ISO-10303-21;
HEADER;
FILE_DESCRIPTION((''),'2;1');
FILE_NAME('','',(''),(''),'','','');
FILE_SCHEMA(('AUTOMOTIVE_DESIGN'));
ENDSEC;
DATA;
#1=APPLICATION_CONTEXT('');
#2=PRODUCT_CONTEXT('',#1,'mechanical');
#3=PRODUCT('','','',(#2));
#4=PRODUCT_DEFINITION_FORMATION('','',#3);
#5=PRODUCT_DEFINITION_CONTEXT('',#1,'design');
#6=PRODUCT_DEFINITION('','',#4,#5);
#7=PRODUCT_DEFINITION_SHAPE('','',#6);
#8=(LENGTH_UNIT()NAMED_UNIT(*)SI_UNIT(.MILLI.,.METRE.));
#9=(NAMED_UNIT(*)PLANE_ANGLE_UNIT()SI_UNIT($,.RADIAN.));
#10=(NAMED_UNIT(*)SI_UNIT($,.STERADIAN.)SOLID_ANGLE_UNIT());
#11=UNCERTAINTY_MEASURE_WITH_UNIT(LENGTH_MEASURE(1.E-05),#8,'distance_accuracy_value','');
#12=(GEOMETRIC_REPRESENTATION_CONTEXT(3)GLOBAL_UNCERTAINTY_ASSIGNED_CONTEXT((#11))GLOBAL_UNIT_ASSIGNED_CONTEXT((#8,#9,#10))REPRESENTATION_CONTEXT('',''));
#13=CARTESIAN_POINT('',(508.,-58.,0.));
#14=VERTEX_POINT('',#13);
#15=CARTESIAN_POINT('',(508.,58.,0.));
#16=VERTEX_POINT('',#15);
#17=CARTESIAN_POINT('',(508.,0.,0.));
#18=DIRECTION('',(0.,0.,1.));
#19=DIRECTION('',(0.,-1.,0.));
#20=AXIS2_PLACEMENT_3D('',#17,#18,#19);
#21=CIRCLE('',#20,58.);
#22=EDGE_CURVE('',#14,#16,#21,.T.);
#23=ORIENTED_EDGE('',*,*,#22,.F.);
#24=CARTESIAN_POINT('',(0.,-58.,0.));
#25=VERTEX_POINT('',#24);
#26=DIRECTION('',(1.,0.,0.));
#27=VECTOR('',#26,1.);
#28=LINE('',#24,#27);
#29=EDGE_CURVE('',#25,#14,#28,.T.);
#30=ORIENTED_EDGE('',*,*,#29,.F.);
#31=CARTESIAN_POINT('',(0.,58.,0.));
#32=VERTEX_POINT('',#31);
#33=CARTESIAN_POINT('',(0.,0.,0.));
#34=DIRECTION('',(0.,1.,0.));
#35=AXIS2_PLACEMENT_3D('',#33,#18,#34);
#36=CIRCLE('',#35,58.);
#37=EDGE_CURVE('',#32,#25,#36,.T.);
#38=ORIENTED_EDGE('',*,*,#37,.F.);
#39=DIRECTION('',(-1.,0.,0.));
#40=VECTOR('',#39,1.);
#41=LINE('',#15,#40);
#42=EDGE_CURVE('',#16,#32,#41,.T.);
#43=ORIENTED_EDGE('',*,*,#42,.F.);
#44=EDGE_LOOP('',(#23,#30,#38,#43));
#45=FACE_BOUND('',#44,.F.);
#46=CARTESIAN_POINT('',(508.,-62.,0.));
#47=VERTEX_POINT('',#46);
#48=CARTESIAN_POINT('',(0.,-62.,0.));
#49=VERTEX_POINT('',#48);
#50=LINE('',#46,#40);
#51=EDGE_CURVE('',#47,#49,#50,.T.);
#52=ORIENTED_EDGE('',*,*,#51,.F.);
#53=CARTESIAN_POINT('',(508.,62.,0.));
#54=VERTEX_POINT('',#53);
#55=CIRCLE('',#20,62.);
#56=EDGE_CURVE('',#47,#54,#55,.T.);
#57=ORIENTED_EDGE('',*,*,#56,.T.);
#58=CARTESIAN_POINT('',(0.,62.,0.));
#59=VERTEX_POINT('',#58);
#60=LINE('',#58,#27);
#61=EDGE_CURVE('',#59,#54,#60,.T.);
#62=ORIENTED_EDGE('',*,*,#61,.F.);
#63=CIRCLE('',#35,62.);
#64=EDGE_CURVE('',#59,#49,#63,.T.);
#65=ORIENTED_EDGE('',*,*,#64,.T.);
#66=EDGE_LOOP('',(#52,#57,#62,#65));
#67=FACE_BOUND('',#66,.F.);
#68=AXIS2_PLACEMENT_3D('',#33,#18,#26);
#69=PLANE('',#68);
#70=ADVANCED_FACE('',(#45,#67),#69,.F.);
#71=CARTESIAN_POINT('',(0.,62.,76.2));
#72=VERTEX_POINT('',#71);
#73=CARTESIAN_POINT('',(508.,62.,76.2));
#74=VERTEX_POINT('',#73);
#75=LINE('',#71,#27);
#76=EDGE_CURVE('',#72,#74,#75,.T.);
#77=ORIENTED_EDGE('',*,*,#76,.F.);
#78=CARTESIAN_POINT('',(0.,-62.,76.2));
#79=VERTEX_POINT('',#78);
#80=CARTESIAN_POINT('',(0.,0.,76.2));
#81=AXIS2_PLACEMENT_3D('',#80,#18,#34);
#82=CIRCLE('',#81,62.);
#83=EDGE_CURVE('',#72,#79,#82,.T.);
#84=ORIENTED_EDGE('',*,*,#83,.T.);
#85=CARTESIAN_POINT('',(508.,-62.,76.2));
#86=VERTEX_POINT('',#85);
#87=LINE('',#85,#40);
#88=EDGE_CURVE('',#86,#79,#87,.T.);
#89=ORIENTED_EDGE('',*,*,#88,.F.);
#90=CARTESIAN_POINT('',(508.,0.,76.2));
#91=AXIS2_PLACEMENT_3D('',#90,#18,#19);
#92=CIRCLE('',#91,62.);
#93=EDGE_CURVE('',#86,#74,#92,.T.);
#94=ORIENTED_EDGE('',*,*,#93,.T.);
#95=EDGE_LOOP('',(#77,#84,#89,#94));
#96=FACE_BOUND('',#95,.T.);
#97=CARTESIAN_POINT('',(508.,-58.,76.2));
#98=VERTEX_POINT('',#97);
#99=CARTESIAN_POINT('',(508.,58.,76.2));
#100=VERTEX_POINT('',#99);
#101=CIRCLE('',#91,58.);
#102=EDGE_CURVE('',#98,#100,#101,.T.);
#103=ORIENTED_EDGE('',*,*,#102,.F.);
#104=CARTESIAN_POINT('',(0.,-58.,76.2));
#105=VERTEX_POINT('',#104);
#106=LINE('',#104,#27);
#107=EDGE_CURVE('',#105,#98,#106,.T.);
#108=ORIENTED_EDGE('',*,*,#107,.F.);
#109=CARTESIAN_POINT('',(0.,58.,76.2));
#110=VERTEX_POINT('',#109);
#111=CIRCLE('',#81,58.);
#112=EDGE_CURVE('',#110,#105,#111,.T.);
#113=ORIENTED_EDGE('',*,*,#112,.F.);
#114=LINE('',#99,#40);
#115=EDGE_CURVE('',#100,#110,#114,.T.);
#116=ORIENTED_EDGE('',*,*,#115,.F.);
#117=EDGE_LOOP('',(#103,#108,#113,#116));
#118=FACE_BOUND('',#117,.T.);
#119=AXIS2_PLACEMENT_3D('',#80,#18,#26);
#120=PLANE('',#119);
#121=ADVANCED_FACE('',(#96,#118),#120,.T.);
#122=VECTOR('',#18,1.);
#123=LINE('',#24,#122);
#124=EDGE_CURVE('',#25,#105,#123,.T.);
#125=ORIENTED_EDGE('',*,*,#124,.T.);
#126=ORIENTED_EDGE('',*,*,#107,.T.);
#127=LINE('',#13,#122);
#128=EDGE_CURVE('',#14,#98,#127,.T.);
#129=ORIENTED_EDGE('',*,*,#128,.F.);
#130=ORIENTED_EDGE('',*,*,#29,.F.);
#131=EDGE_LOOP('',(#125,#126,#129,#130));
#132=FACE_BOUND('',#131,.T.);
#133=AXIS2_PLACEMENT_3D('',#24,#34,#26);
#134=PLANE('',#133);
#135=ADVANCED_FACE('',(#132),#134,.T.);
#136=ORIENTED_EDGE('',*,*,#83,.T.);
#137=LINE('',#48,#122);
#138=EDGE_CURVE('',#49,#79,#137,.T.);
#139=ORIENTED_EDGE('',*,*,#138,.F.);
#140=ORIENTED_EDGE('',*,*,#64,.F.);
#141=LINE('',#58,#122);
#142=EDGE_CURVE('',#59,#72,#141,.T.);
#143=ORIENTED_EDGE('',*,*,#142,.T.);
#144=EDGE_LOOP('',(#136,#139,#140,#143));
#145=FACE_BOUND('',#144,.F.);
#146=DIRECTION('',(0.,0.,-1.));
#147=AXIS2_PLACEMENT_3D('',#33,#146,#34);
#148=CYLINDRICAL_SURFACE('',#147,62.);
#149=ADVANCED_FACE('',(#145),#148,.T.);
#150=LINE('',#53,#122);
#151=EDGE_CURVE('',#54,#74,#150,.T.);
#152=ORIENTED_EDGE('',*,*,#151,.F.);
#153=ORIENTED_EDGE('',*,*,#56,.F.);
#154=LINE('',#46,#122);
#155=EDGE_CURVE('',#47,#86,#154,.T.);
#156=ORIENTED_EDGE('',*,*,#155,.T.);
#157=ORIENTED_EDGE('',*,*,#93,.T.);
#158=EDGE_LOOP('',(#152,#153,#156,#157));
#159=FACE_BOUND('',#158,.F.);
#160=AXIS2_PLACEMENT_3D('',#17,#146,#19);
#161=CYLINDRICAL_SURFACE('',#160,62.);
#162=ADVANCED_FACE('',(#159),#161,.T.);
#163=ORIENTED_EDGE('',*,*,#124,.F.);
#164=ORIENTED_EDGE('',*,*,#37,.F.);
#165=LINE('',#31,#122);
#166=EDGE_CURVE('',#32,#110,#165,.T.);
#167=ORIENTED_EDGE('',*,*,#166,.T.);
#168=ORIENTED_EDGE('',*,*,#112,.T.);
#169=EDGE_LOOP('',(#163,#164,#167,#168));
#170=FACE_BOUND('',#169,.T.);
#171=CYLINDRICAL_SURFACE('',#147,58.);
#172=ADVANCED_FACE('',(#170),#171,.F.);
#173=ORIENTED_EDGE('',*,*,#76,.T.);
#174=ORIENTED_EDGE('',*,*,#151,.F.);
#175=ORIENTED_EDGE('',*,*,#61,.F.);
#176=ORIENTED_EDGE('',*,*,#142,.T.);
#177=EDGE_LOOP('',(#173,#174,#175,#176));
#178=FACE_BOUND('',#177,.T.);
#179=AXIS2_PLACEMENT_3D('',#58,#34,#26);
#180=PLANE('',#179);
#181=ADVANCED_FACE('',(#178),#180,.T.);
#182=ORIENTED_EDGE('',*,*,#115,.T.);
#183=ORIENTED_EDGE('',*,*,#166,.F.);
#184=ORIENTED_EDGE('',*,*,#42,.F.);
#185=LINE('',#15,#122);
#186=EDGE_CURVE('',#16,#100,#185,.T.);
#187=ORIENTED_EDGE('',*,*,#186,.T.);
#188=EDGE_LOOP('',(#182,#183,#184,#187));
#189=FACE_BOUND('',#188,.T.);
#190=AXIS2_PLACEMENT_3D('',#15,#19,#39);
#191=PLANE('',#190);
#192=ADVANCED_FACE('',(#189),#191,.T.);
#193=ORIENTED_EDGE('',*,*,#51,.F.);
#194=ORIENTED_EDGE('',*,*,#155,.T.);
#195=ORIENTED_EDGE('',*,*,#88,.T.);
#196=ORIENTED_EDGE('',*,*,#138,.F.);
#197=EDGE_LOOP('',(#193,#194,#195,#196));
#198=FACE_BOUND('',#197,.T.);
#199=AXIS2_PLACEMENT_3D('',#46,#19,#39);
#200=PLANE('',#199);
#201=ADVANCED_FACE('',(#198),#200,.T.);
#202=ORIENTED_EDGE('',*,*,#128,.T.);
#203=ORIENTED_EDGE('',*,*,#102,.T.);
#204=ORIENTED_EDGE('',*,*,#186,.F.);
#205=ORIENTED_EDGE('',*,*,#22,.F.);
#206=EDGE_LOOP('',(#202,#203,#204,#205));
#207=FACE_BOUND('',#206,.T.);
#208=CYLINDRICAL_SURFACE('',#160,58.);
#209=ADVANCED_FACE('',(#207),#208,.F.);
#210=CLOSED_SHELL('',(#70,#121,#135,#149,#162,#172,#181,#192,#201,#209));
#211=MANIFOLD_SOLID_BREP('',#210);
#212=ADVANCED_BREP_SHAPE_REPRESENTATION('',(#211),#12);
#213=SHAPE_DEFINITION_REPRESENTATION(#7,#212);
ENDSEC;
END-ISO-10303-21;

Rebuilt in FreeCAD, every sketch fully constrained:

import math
import FreeCAD as App
import Part
import Sketcher
Q = App.Units.Quantity

doc = App.newDocument("Part")
body = doc.addObject("PartDesign::Body", "Body")

# Sketch on XY plane
sketch1 = doc.addObject("Sketcher::SketchObject", "Sketch")
body.addObject(sketch1)
sketch1.AttachmentSupport = (doc.XY_Plane, [""])
sketch1.MapMode = "FlatFace"
sketch1.addGeometry([
    Part.LineSegment(App.Vector(508, 62, 0), App.Vector(0, 62, 0)),  # 0
    Part.ArcOfCircle(Part.Circle(App.Vector(0, 0, 0), App.Vector(0, 0, 1), 62), math.radians(90), math.radians(270)),  # 1
    Part.LineSegment(App.Vector(0, -62, 0), App.Vector(508, -62, 0)),  # 2
    Part.ArcOfCircle(Part.Circle(App.Vector(508, 0, 0), App.Vector(0, 0, 1), 62), math.radians(-90), math.radians(90)),  # 3
    Part.LineSegment(App.Vector(508, -58, 0), App.Vector(0, -58, 0)),  # 4
    Part.ArcOfCircle(Part.Circle(App.Vector(0, 0, 0), App.Vector(0, 0, 1), 58), math.radians(90), math.radians(270)),  # 5
    Part.LineSegment(App.Vector(0, 58, 0), App.Vector(508, 58, 0)),  # 6
    Part.ArcOfCircle(Part.Circle(App.Vector(508, 0, 0), App.Vector(0, 0, 1), 58), math.radians(-90), math.radians(90)),  # 7
], False)
sketch1.addConstraint([
    Sketcher.Constraint("Tangent", 0, 2, 1, 1),
    Sketcher.Constraint("Tangent", 1, 2, 2, 1),
    Sketcher.Constraint("Tangent", 2, 2, 3, 1),
    Sketcher.Constraint("Tangent", 3, 2, 0, 1),
    Sketcher.Constraint("Tangent", 4, 2, 5, 2),
    Sketcher.Constraint("Tangent", 5, 1, 6, 1),
    Sketcher.Constraint("Tangent", 6, 2, 7, 2),
    Sketcher.Constraint("Tangent", 7, 1, 4, 1),
    Sketcher.Constraint("Horizontal", 0),
    Sketcher.Constraint("Horizontal", 2),
    Sketcher.Constraint("Horizontal", 4),
    Sketcher.Constraint("Horizontal", 6),
    Sketcher.Constraint("Coincident", 1, 3, -1, 1),
    Sketcher.Constraint("Coincident", 5, 3, -1, 1),
    Sketcher.Constraint("Vertical", 7, 3, 2, 2),
    Sketcher.Constraint("DistanceX", 0, 2, 0, 1, Q("20 in")),
    Sketcher.Constraint("Radius", 5, 58.0),
    Sketcher.Constraint("Radius", 1, 62.0),
])
pad1 = doc.addObject("PartDesign::Pad", "Pad")
body.addObject(pad1)
pad1.Profile = sketch1
pad1.Length = Q("3 in")

doc.recompute()
